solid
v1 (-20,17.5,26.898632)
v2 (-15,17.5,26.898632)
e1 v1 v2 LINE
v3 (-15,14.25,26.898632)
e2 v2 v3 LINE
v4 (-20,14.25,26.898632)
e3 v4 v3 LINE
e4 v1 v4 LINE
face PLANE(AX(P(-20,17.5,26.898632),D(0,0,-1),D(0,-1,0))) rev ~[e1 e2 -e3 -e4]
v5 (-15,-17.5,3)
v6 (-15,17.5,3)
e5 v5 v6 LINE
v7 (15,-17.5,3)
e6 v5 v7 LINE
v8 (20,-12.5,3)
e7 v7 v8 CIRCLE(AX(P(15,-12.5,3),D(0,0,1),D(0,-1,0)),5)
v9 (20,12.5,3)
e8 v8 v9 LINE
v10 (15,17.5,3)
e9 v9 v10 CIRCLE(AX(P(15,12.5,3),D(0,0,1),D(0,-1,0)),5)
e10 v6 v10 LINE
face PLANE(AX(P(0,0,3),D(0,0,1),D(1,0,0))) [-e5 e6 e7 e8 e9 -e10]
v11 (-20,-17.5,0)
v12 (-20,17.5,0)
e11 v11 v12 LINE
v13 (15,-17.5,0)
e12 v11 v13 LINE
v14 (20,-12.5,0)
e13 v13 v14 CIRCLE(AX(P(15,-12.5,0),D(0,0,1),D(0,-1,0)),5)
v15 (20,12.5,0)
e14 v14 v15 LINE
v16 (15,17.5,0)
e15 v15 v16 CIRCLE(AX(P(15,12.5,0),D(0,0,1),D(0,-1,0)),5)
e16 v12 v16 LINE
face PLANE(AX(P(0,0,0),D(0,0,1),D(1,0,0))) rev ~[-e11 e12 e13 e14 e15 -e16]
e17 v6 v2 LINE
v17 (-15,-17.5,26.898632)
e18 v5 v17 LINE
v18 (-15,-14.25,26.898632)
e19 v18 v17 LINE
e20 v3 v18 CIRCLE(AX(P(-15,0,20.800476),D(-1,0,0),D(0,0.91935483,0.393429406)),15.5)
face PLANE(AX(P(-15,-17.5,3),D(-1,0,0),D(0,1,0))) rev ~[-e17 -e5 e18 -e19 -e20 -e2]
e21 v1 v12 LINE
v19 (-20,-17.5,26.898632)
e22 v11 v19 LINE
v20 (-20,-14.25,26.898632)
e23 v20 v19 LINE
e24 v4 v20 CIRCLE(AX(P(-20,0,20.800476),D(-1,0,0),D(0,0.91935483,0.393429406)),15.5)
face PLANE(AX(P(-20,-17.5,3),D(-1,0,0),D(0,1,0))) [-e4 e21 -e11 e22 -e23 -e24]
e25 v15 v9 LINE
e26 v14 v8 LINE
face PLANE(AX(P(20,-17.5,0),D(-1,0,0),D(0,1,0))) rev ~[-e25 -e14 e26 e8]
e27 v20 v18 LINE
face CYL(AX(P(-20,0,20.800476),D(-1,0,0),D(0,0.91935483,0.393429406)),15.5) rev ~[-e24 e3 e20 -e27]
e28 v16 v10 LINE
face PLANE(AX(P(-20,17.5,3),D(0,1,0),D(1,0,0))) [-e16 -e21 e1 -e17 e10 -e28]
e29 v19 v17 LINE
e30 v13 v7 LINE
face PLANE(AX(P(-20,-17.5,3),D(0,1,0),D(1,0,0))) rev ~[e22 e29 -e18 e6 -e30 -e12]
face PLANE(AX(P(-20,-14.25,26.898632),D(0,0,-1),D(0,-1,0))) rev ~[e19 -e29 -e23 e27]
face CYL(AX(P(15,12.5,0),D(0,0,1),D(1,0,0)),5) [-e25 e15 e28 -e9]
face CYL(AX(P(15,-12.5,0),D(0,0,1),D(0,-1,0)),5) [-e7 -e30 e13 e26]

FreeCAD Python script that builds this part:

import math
import FreeCAD as App
import Part
import Sketcher

V = App.Vector


def edges_at(feature, points):
    """Names of the edges that pass closest to the given points."""
    edges = feature.Shape.Edges
    near = lambda p: min(range(len(edges)), key=lambda i: edges[i].distToShape(Part.Vertex(*p))[0])
    return sorted({f"Edge{near(p) + 1}" for p in points})


def add_polygon(sketch, points):
    """Adds a closed chain of lines whose ends are joined by coincident constraints."""
    first, n = sketch.GeometryCount, len(points)
    for a, b in zip(points, points[1:] + points[:1]):
        sketch.addGeometry(Part.LineSegment(App.Vector(*a, 0), App.Vector(*b, 0)), False)
    for i in range(n):
        sketch.addConstraint(Sketcher.Constraint("Coincident", first + i, 2, first + (i + 1) % n, 1))

doc = App.newDocument("Part")
body = doc.addObject("PartDesign::Body", "Body")

# Sketch on XY plane
sketch1 = body.newObject("Sketcher::SketchObject", "Sketch")
sketch1.AttachmentSupport = (doc.getObject("XY_Plane"), [""])
sketch1.MapMode = "FlatFace"
add_polygon(sketch1, [(-20, 18), (-20, -18), (20, -18), (20, 18)])  # lines 0-3
sketch1.addConstraint(Sketcher.Constraint("Vertical", 0))
sketch1.addConstraint(Sketcher.Constraint("Horizontal", 1))
sketch1.addConstraint(Sketcher.Constraint("Vertical", 2))
sketch1.addConstraint(Sketcher.Constraint("Horizontal", 3))
sketch1.addConstraint(Sketcher.Constraint("Symmetric", 0, 2, 2, 2, -1, 1))
sketch1.addConstraint(Sketcher.Constraint("DistanceX", 1, 1, 1, 2, 40.0))
sketch1.addConstraint(Sketcher.Constraint("DistanceY", 0, 2, 0, 1, 35.0))
pad1 = body.newObject("PartDesign::Pad", "Pad")
pad1.Profile = sketch1
pad1.Length = 3
doc.recompute()

fillet = body.newObject("PartDesign::Fillet", "Fillet")
fillet.Base = (pad1, edges_at(pad1, [(20, 17.5, 1.5), (20, -17.5, 1.5)]))
fillet.Radius = 5

# Sketch on XY plane
sketch2 = body.newObject("Sketcher::SketchObject", "Sketch001")
sketch2.AttachmentSupport = (doc.getObject("XY_Plane"), [""])
sketch2.MapMode = "FlatFace"
sketch2.AttachmentOffset = App.Placement(V(0, 0, 3), App.Rotation())
add_polygon(sketch2, [(-20, 18), (-20, -18), (-15, -18), (-15, 18)])  # lines 0-3
sketch2.addConstraint(Sketcher.Constraint("Vertical", 0))
sketch2.addConstraint(Sketcher.Constraint("Horizontal", 1))
sketch2.addConstraint(Sketcher.Constraint("Vertical", 2))
sketch2.addConstraint(Sketcher.Constraint("Horizontal", 3))
sketch2.addConstraint(Sketcher.Constraint("DistanceX", 1, 1, 1, 2, 5.0))
sketch2.addConstraint(Sketcher.Constraint("DistanceY", 0, 2, 0, 1, 35.0))
sketch2.addConstraint(Sketcher.Constraint("DistanceX", 0, 2, -1, 1, 20.0))
sketch2.addConstraint(Sketcher.Constraint("DistanceY", 0, 2, -1, 1, 17.5))
pad2 = body.newObject("PartDesign::Pad", "Pad001")
pad2.Profile = sketch2
pad2.Length = 40

# Sketch on YZ plane
sketch3 = body.newObject("Sketcher::SketchObject", "Sketch002")
sketch3.AttachmentSupport = (doc.getObject("YZ_Plane"), [""])
sketch3.MapMode = "FlatFace"
sketch3.AttachmentOffset = App.Placement(V(0, 0, -20), App.Rotation())
sketch3.addGeometry(Part.LineSegment(V(17.5, 26.9, 0), V(14.2, 26.9, 0)), False)
sketch3.addGeometry(Part.ArcOfCircle(Part.Circle(V(0, 20.8, 0), V(0, 0, 1), 15.5), math.radians(157), math.radians(383)), False)
sketch3.addGeometry(Part.LineSegment(V(-14.2, 26.9, 0), V(-17.5, 26.9, 0)), False)
sketch3.addGeometry(Part.LineSegment(V(-17.5, 26.9, 0), V(-17.5, 43, 0)), False)
sketch3.addGeometry(Part.LineSegment(V(-17.5, 43, 0), V(17.5, 43, 0)), False)
sketch3.addGeometry(Part.LineSegment(V(17.5, 43, 0), V(17.5, 26.9, 0)), False)
sketch3.addConstraint(Sketcher.Constraint("Coincident", 0, 2, 1, 2))
sketch3.addConstraint(Sketcher.Constraint("Coincident", 1, 1, 2, 1))
sketch3.addConstraint(Sketcher.Constraint("Coincident", 2, 2, 3, 1))
sketch3.addConstraint(Sketcher.Constraint("Coincident", 3, 2, 4, 1))
sketch3.addConstraint(Sketcher.Constraint("Coincident", 4, 2, 5, 1))
sketch3.addConstraint(Sketcher.Constraint("Coincident", 5, 2, 0, 1))
sketch3.addConstraint(Sketcher.Constraint("Horizontal", 0))
sketch3.addConstraint(Sketcher.Constraint("Horizontal", 2))
sketch3.addConstraint(Sketcher.Constraint("Vertical", 3))
sketch3.addConstraint(Sketcher.Constraint("Horizontal", 4))
sketch3.addConstraint(Sketcher.Constraint("Vertical", 5))
sketch3.addConstraint(Sketcher.Constraint("Symmetric", 0, 2, 1, 1, -2))
sketch3.addConstraint(Sketcher.Constraint("Equal", 0, 2))
sketch3.addConstraint(Sketcher.Constraint("Radius", 1, 15.5))
sketch3.addConstraint(Sketcher.Constraint("DistanceX", 4, 1, 4, 2, 35.0))
sketch3.addConstraint(Sketcher.Constraint("DistanceY", -1, 1, 3, 2, 43.0))
sketch3.addConstraint(Sketcher.Constraint("DistanceX", 0, 2, 0, 1, 3.25))
sketch3.addConstraint(Sketcher.Constraint("DistanceY", 3, 1, 3, 2, 16.101368))
pocket1 = body.newObject("PartDesign::Pocket", "Pocket")
pocket1.Profile = sketch3
pocket1.Type = "ThroughAll"
pocket1.Reversed = True

doc.recompute()
